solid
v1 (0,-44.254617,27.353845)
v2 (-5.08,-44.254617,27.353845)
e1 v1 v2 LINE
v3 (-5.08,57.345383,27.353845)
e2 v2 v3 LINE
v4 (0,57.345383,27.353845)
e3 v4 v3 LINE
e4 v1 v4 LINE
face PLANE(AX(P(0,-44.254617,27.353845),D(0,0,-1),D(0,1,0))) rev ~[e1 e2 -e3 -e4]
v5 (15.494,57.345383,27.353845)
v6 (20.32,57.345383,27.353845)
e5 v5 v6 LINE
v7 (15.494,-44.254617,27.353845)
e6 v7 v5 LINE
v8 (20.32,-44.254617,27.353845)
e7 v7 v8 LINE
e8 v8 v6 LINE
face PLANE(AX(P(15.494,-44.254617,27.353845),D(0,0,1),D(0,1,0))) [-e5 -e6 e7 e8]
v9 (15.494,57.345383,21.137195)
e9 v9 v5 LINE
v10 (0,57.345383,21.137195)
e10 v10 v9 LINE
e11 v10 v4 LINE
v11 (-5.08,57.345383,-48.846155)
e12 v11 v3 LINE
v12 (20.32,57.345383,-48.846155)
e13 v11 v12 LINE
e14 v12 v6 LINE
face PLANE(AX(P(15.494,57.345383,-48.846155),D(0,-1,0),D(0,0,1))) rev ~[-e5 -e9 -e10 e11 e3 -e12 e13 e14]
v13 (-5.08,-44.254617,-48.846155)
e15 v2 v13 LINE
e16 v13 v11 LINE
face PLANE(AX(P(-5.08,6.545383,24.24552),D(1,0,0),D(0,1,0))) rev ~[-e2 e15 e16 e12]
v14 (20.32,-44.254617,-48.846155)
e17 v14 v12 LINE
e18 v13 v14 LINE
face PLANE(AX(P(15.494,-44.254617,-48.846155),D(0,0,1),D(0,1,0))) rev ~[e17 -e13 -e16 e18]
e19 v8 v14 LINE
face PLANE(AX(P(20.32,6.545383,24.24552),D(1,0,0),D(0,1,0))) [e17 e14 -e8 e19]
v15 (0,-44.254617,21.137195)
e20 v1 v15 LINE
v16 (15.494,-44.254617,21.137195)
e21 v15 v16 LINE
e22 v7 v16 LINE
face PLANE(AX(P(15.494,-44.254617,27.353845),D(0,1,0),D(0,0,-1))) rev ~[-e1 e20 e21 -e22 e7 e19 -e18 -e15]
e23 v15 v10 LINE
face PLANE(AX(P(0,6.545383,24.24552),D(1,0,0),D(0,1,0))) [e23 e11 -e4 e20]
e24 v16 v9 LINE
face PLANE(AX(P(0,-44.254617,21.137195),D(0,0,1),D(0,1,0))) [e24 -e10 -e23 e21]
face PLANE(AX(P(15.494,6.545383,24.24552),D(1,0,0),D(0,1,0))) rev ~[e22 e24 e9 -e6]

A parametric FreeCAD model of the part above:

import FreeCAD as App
import Part
import Sketcher
Q = App.Units.Quantity


def add_polygon(sketch, points):
    """Adds a closed chain of lines whose ends are joined by coincident constraints."""
    first, n = sketch.GeometryCount, len(points)
    for a, b in zip(points, points[1:] + points[:1]):
        sketch.addGeometry(Part.LineSegment(App.Vector(*a, 0), App.Vector(*b, 0)), False)
    for i in range(n):
        sketch.addConstraint(Sketcher.Constraint("Coincident", first + i, 2, first + (i + 1) % n, 1))

doc = App.newDocument("Part")
body = doc.addObject("PartDesign::Body", "Body")

# Sketch on YZ plane
sketch1 = body.newObject("Sketcher::SketchObject", "Sketch")
sketch1.AttachmentSupport = (doc.getObject("YZ_Plane"), [""])
sketch1.MapMode = "FlatFace"
add_polygon(sketch1, [(-44, 27), (-44, -49), (57, -49), (57, 27)])  # lines 0-3
sketch1.addConstraint([
    Sketcher.Constraint("Vertical", 0),
    Sketcher.Constraint("Horizontal", 1),
    Sketcher.Constraint("Vertical", 2),
    Sketcher.Constraint("Horizontal", 3),
    Sketcher.Constraint("DistanceX", 1, 1, 1, 2, Q("4 in")),
    Sketcher.Constraint("DistanceY", 0, 2, 0, 1, Q("3 in")),
    Sketcher.Constraint("DistanceX", 0, 2, -1, 1, Q("44.254617 mm")),
    Sketcher.Constraint("DistanceY", 0, 2, -1, 1, Q("48.846155 mm")),
])
pad1 = body.newObject("PartDesign::Pad", "Pad")
pad1.Profile = sketch1
pad1.Length = Q("0.2 in")
pad1.Reversed = True

# Sketch on YZ plane
sketch2 = body.newObject("Sketcher::SketchObject", "Sketch001")
sketch2.AttachmentSupport = (doc.getObject("YZ_Plane"), [""])
sketch2.MapMode = "FlatFace"
add_polygon(sketch2, [(-44, 21), (-44, -49), (57, -49), (57, 21)])  # lines 0-3
sketch2.addConstraint([
    Sketcher.Constraint("Vertical", 0),
    Sketcher.Constraint("Horizontal", 1),
    Sketcher.Constraint("Vertical", 2),
    Sketcher.Constraint("Horizontal", 3),
    Sketcher.Constraint("DistanceX", 1, 1, 1, 2, Q("4 in")),
    Sketcher.Constraint("DistanceY", 0, 2, 0, 1, Q("69.98335 mm")),
    Sketcher.Constraint("DistanceX", 0, 2, -1, 1, Q("44.254617 mm")),
    Sketcher.Constraint("DistanceY", 0, 2, -1, 1, Q("48.846155 mm")),
])
pad2 = body.newObject("PartDesign::Pad", "Pad001")
pad2.Profile = sketch2
pad2.Length = Q("0.61 in")

# Sketch on YZ plane
sketch3 = body.newObject("Sketcher::SketchObject", "Sketch002")
sketch3.AttachmentSupport = (doc.getObject("YZ_Plane"), [""])
sketch3.MapMode = "FlatFace"
sketch3.AttachmentOffset = App.Placement(App.Vector(0, 0, 0.61 * 25.4), App.Rotation())
add_polygon(sketch3, [(-44, 27), (-44, -49), (57, -49), (57, 27)])  # lines 0-3
sketch3.addConstraint([
    Sketcher.Constraint("Vertical", 0),
    Sketcher.Constraint("Horizontal", 1),
    Sketcher.Constraint("Vertical", 2),
    Sketcher.Constraint("Horizontal", 3),
    Sketcher.Constraint("DistanceX", 1, 1, 1, 2, Q("4 in")),
    Sketcher.Constraint("DistanceY", 0, 2, 0, 1, Q("3 in")),
    Sketcher.Constraint("DistanceX", 0, 2, -1, 1, Q("44.254617 mm")),
    Sketcher.Constraint("DistanceY", 0, 2, -1, 1, Q("48.846155 mm")),
])
pad3 = body.newObject("PartDesign::Pad", "Pad002")
pad3.Profile = sketch3
pad3.Length = Q("0.19 in")

doc.recompute()
